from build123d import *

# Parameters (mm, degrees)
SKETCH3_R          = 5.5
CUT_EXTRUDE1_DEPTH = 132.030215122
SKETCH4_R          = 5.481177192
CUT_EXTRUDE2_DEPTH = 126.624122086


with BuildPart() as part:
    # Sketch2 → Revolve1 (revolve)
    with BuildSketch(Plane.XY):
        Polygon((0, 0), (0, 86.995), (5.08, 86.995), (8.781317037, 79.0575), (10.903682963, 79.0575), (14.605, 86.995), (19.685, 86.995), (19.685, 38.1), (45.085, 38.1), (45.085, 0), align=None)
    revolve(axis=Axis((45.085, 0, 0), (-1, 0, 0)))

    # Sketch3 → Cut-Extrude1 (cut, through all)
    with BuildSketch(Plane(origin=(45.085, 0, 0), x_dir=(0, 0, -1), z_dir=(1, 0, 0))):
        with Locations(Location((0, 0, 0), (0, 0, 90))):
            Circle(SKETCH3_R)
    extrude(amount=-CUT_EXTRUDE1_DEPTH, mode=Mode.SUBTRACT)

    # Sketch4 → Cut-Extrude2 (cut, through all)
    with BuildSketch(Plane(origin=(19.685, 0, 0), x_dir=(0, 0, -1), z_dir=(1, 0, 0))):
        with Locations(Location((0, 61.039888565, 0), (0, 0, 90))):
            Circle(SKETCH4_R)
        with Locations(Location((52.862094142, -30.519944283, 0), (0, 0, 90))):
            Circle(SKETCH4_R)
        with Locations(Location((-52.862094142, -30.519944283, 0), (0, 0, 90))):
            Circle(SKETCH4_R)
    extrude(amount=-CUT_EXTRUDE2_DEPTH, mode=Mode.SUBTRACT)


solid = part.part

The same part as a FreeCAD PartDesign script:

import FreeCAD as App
import Part
import Sketcher

V = App.Vector
Q = App.Units.Quantity


def add_polygon(sketch, points):
    """Adds a closed chain of lines whose ends are joined by coincident constraints."""
    first, n = sketch.GeometryCount, len(points)
    for a, b in zip(points, points[1:] + points[:1]):
        sketch.addGeometry(Part.LineSegment(App.Vector(*a, 0), App.Vector(*b, 0)), False)
    for i in range(n):
        sketch.addConstraint(Sketcher.Constraint("Coincident", first + i, 2, first + (i + 1) % n, 1))

doc = App.newDocument("Part")
params = doc.addObject("Spreadsheet::Sheet", "Params")
for row, (alias, value) in enumerate([
    ("sketch1_width", "1 in"),
    ("sketch1_width2", "0.2 in"),
    ("sketch1_height", "1.5 in"),
    ("sketch1_width3", "1.775 in"),
    ("sketch1_height2", "3.425 in"),
    ("revolution_angle", "360 deg"),
], start=1):
    params.set(f"A{row}", alias)
    params.set(f"B{row}", "=" + value)
    params.setAlias(f"B{row}", alias)

body = doc.addObject("PartDesign::Body", "Body")

# Sketch on XY plane
sketch1 = body.newObject("Sketcher::SketchObject", "Sketch")
sketch1.AttachmentSupport = (doc.getObject("XY_Plane"), [""])
sketch1.MapMode = "FlatFace"
add_polygon(sketch1, [(0, 87), (0, 0), (45.1, 0), (45.1, 38.1), (19.7, 38.1), (19.7, 87), (14.6, 87), (10.9, 79.1), (8.8, 79.1), (5.1, 87)])  # lines 0-9
sketch1.addConstraint(Sketcher.Constraint("Vertical", 0))
sketch1.addConstraint(Sketcher.Constraint("Horizontal", 1))
sketch1.addConstraint(Sketcher.Constraint("Vertical", 2))
sketch1.addConstraint(Sketcher.Constraint("Horizontal", 3))
sketch1.addConstraint(Sketcher.Constraint("Vertical", 4))
sketch1.addConstraint(Sketcher.Constraint("Horizontal", 5))
sketch1.addConstraint(Sketcher.Constraint("Horizontal", 7))
sketch1.addConstraint(Sketcher.Constraint("Horizontal", 9))
sketch1.addConstraint(Sketcher.Constraint("Coincident", 0, 2, -1, 1))
sketch1.addConstraint(Sketcher.Constraint("Horizontal", 5, 2, 8, 2))
sketch1.addConstraint(Sketcher.Constraint("Equal", 5, 9))
sketch1.addConstraint(Sketcher.Constraint("Equal", 6, 8))
sketch1.addConstraint(Sketcher.Constraint("DistanceX", 3, 2, 3, 1, Q("1 in")))
sketch1.addConstraint(Sketcher.Constraint("DistanceX", 5, 2, 5, 1, Q("0.2 in")))
sketch1.addConstraint(Sketcher.Constraint("DistanceY", 2, 1, 2, 2, Q("1.5 in")))
sketch1.addConstraint(Sketcher.Constraint("Angle", 6, Q("-115 deg")))
sketch1.addConstraint(Sketcher.Constraint("DistanceX", 1, 1, 1, 2, Q("1.775 in")))
sketch1.addConstraint(Sketcher.Constraint("DistanceY", 0, 2, 0, 1, Q("3.425 in")))
sketch1.addConstraint(Sketcher.Constraint("DistanceY", 6, 2, 5, 2, Q("0.3125 in")))
sketch1.setExpression("Constraints[22]", "Params.sketch1_width")
sketch1.setExpression("Constraints[23]", "Params.sketch1_width2")
sketch1.setExpression("Constraints[24]", "Params.sketch1_height")
sketch1.setExpression("Constraints[26]", "Params.sketch1_width3")
sketch1.setExpression("Constraints[27]", "Params.sketch1_height2")
revolution = body.newObject("PartDesign::Revolution", "Revolution")
revolution.Profile = sketch1
revolution.ReferenceAxis = (sketch1, ["H_Axis"])
revolution.setExpression("Angle", "Params.revolution_angle")

# Sketch on YZ plane
sketch2 = body.newObject("Sketcher::SketchObject", "Sketch001")
sketch2.AttachmentSupport = (doc.getObject("YZ_Plane"), [""])
sketch2.MapMode = "FlatFace"
sketch2.AttachmentOffset = App.Placement(V(0, 0, 1.775 * 25.4), App.Rotation())
sketch2.addGeometry(Part.Circle(V(0, 0, 0), V(0, 0, 1), 6), False)
sketch2.addConstraint(Sketcher.Constraint("Coincident", 0, 3, -1, 1))
sketch2.addConstraint(Sketcher.Constraint("Diameter", 0, 11.0))
pocket1 = body.newObject("PartDesign::Pocket", "Pocket")
pocket1.Profile = sketch2
pocket1.Type = "ThroughAll"

# Sketch on YZ plane
sketch3 = body.newObject("Sketcher::SketchObject", "Sketch002")
sketch3.AttachmentSupport = (doc.getObject("YZ_Plane"), [""])
sketch3.MapMode = "FlatFace"
sketch3.AttachmentOffset = App.Placement(V(0, 0, 0.775 * 25.4), App.Rotation())
sketch3.addGeometry(Part.Circle(V(61, 0, 0), V(0, 0, 1), 5), False)
sketch3.addGeometry(Part.Circle(V(-31, -53, 0), V(0, 0, 1), 5), False)
sketch3.addGeometry(Part.Circle(V(-31, 53, 0), V(0, 0, 1), 5), False)
sketch3.addConstraint(Sketcher.Constraint("Equal", 0, 1))
sketch3.addConstraint(Sketcher.Constraint("Equal", 1, 2))
sketch3.addConstraint(Sketcher.Constraint("Symmetric", 1, 3, 2, 3, -1))
sketch3.addConstraint(Sketcher.Constraint("PointOnObject", 0, 3, -1))
sketch3.addConstraint(Sketcher.Constraint("Diameter", 0, 10.962354))
sketch3.addConstraint(Sketcher.Constraint("DistanceX", -1, 1, 0, 3, 61.039889))
sketch3.addConstraint(Sketcher.Constraint("DistanceY", 1, 3, 2, 3, 105.724188))
sketch3.addConstraint(Sketcher.Constraint("DistanceX", 1, 3, -1, 1, 30.519944))
pocket2 = body.newObject("PartDesign::Pocket", "Pocket001")
pocket2.Profile = sketch3
pocket2.Type = "ThroughAll"

doc.recompute()
